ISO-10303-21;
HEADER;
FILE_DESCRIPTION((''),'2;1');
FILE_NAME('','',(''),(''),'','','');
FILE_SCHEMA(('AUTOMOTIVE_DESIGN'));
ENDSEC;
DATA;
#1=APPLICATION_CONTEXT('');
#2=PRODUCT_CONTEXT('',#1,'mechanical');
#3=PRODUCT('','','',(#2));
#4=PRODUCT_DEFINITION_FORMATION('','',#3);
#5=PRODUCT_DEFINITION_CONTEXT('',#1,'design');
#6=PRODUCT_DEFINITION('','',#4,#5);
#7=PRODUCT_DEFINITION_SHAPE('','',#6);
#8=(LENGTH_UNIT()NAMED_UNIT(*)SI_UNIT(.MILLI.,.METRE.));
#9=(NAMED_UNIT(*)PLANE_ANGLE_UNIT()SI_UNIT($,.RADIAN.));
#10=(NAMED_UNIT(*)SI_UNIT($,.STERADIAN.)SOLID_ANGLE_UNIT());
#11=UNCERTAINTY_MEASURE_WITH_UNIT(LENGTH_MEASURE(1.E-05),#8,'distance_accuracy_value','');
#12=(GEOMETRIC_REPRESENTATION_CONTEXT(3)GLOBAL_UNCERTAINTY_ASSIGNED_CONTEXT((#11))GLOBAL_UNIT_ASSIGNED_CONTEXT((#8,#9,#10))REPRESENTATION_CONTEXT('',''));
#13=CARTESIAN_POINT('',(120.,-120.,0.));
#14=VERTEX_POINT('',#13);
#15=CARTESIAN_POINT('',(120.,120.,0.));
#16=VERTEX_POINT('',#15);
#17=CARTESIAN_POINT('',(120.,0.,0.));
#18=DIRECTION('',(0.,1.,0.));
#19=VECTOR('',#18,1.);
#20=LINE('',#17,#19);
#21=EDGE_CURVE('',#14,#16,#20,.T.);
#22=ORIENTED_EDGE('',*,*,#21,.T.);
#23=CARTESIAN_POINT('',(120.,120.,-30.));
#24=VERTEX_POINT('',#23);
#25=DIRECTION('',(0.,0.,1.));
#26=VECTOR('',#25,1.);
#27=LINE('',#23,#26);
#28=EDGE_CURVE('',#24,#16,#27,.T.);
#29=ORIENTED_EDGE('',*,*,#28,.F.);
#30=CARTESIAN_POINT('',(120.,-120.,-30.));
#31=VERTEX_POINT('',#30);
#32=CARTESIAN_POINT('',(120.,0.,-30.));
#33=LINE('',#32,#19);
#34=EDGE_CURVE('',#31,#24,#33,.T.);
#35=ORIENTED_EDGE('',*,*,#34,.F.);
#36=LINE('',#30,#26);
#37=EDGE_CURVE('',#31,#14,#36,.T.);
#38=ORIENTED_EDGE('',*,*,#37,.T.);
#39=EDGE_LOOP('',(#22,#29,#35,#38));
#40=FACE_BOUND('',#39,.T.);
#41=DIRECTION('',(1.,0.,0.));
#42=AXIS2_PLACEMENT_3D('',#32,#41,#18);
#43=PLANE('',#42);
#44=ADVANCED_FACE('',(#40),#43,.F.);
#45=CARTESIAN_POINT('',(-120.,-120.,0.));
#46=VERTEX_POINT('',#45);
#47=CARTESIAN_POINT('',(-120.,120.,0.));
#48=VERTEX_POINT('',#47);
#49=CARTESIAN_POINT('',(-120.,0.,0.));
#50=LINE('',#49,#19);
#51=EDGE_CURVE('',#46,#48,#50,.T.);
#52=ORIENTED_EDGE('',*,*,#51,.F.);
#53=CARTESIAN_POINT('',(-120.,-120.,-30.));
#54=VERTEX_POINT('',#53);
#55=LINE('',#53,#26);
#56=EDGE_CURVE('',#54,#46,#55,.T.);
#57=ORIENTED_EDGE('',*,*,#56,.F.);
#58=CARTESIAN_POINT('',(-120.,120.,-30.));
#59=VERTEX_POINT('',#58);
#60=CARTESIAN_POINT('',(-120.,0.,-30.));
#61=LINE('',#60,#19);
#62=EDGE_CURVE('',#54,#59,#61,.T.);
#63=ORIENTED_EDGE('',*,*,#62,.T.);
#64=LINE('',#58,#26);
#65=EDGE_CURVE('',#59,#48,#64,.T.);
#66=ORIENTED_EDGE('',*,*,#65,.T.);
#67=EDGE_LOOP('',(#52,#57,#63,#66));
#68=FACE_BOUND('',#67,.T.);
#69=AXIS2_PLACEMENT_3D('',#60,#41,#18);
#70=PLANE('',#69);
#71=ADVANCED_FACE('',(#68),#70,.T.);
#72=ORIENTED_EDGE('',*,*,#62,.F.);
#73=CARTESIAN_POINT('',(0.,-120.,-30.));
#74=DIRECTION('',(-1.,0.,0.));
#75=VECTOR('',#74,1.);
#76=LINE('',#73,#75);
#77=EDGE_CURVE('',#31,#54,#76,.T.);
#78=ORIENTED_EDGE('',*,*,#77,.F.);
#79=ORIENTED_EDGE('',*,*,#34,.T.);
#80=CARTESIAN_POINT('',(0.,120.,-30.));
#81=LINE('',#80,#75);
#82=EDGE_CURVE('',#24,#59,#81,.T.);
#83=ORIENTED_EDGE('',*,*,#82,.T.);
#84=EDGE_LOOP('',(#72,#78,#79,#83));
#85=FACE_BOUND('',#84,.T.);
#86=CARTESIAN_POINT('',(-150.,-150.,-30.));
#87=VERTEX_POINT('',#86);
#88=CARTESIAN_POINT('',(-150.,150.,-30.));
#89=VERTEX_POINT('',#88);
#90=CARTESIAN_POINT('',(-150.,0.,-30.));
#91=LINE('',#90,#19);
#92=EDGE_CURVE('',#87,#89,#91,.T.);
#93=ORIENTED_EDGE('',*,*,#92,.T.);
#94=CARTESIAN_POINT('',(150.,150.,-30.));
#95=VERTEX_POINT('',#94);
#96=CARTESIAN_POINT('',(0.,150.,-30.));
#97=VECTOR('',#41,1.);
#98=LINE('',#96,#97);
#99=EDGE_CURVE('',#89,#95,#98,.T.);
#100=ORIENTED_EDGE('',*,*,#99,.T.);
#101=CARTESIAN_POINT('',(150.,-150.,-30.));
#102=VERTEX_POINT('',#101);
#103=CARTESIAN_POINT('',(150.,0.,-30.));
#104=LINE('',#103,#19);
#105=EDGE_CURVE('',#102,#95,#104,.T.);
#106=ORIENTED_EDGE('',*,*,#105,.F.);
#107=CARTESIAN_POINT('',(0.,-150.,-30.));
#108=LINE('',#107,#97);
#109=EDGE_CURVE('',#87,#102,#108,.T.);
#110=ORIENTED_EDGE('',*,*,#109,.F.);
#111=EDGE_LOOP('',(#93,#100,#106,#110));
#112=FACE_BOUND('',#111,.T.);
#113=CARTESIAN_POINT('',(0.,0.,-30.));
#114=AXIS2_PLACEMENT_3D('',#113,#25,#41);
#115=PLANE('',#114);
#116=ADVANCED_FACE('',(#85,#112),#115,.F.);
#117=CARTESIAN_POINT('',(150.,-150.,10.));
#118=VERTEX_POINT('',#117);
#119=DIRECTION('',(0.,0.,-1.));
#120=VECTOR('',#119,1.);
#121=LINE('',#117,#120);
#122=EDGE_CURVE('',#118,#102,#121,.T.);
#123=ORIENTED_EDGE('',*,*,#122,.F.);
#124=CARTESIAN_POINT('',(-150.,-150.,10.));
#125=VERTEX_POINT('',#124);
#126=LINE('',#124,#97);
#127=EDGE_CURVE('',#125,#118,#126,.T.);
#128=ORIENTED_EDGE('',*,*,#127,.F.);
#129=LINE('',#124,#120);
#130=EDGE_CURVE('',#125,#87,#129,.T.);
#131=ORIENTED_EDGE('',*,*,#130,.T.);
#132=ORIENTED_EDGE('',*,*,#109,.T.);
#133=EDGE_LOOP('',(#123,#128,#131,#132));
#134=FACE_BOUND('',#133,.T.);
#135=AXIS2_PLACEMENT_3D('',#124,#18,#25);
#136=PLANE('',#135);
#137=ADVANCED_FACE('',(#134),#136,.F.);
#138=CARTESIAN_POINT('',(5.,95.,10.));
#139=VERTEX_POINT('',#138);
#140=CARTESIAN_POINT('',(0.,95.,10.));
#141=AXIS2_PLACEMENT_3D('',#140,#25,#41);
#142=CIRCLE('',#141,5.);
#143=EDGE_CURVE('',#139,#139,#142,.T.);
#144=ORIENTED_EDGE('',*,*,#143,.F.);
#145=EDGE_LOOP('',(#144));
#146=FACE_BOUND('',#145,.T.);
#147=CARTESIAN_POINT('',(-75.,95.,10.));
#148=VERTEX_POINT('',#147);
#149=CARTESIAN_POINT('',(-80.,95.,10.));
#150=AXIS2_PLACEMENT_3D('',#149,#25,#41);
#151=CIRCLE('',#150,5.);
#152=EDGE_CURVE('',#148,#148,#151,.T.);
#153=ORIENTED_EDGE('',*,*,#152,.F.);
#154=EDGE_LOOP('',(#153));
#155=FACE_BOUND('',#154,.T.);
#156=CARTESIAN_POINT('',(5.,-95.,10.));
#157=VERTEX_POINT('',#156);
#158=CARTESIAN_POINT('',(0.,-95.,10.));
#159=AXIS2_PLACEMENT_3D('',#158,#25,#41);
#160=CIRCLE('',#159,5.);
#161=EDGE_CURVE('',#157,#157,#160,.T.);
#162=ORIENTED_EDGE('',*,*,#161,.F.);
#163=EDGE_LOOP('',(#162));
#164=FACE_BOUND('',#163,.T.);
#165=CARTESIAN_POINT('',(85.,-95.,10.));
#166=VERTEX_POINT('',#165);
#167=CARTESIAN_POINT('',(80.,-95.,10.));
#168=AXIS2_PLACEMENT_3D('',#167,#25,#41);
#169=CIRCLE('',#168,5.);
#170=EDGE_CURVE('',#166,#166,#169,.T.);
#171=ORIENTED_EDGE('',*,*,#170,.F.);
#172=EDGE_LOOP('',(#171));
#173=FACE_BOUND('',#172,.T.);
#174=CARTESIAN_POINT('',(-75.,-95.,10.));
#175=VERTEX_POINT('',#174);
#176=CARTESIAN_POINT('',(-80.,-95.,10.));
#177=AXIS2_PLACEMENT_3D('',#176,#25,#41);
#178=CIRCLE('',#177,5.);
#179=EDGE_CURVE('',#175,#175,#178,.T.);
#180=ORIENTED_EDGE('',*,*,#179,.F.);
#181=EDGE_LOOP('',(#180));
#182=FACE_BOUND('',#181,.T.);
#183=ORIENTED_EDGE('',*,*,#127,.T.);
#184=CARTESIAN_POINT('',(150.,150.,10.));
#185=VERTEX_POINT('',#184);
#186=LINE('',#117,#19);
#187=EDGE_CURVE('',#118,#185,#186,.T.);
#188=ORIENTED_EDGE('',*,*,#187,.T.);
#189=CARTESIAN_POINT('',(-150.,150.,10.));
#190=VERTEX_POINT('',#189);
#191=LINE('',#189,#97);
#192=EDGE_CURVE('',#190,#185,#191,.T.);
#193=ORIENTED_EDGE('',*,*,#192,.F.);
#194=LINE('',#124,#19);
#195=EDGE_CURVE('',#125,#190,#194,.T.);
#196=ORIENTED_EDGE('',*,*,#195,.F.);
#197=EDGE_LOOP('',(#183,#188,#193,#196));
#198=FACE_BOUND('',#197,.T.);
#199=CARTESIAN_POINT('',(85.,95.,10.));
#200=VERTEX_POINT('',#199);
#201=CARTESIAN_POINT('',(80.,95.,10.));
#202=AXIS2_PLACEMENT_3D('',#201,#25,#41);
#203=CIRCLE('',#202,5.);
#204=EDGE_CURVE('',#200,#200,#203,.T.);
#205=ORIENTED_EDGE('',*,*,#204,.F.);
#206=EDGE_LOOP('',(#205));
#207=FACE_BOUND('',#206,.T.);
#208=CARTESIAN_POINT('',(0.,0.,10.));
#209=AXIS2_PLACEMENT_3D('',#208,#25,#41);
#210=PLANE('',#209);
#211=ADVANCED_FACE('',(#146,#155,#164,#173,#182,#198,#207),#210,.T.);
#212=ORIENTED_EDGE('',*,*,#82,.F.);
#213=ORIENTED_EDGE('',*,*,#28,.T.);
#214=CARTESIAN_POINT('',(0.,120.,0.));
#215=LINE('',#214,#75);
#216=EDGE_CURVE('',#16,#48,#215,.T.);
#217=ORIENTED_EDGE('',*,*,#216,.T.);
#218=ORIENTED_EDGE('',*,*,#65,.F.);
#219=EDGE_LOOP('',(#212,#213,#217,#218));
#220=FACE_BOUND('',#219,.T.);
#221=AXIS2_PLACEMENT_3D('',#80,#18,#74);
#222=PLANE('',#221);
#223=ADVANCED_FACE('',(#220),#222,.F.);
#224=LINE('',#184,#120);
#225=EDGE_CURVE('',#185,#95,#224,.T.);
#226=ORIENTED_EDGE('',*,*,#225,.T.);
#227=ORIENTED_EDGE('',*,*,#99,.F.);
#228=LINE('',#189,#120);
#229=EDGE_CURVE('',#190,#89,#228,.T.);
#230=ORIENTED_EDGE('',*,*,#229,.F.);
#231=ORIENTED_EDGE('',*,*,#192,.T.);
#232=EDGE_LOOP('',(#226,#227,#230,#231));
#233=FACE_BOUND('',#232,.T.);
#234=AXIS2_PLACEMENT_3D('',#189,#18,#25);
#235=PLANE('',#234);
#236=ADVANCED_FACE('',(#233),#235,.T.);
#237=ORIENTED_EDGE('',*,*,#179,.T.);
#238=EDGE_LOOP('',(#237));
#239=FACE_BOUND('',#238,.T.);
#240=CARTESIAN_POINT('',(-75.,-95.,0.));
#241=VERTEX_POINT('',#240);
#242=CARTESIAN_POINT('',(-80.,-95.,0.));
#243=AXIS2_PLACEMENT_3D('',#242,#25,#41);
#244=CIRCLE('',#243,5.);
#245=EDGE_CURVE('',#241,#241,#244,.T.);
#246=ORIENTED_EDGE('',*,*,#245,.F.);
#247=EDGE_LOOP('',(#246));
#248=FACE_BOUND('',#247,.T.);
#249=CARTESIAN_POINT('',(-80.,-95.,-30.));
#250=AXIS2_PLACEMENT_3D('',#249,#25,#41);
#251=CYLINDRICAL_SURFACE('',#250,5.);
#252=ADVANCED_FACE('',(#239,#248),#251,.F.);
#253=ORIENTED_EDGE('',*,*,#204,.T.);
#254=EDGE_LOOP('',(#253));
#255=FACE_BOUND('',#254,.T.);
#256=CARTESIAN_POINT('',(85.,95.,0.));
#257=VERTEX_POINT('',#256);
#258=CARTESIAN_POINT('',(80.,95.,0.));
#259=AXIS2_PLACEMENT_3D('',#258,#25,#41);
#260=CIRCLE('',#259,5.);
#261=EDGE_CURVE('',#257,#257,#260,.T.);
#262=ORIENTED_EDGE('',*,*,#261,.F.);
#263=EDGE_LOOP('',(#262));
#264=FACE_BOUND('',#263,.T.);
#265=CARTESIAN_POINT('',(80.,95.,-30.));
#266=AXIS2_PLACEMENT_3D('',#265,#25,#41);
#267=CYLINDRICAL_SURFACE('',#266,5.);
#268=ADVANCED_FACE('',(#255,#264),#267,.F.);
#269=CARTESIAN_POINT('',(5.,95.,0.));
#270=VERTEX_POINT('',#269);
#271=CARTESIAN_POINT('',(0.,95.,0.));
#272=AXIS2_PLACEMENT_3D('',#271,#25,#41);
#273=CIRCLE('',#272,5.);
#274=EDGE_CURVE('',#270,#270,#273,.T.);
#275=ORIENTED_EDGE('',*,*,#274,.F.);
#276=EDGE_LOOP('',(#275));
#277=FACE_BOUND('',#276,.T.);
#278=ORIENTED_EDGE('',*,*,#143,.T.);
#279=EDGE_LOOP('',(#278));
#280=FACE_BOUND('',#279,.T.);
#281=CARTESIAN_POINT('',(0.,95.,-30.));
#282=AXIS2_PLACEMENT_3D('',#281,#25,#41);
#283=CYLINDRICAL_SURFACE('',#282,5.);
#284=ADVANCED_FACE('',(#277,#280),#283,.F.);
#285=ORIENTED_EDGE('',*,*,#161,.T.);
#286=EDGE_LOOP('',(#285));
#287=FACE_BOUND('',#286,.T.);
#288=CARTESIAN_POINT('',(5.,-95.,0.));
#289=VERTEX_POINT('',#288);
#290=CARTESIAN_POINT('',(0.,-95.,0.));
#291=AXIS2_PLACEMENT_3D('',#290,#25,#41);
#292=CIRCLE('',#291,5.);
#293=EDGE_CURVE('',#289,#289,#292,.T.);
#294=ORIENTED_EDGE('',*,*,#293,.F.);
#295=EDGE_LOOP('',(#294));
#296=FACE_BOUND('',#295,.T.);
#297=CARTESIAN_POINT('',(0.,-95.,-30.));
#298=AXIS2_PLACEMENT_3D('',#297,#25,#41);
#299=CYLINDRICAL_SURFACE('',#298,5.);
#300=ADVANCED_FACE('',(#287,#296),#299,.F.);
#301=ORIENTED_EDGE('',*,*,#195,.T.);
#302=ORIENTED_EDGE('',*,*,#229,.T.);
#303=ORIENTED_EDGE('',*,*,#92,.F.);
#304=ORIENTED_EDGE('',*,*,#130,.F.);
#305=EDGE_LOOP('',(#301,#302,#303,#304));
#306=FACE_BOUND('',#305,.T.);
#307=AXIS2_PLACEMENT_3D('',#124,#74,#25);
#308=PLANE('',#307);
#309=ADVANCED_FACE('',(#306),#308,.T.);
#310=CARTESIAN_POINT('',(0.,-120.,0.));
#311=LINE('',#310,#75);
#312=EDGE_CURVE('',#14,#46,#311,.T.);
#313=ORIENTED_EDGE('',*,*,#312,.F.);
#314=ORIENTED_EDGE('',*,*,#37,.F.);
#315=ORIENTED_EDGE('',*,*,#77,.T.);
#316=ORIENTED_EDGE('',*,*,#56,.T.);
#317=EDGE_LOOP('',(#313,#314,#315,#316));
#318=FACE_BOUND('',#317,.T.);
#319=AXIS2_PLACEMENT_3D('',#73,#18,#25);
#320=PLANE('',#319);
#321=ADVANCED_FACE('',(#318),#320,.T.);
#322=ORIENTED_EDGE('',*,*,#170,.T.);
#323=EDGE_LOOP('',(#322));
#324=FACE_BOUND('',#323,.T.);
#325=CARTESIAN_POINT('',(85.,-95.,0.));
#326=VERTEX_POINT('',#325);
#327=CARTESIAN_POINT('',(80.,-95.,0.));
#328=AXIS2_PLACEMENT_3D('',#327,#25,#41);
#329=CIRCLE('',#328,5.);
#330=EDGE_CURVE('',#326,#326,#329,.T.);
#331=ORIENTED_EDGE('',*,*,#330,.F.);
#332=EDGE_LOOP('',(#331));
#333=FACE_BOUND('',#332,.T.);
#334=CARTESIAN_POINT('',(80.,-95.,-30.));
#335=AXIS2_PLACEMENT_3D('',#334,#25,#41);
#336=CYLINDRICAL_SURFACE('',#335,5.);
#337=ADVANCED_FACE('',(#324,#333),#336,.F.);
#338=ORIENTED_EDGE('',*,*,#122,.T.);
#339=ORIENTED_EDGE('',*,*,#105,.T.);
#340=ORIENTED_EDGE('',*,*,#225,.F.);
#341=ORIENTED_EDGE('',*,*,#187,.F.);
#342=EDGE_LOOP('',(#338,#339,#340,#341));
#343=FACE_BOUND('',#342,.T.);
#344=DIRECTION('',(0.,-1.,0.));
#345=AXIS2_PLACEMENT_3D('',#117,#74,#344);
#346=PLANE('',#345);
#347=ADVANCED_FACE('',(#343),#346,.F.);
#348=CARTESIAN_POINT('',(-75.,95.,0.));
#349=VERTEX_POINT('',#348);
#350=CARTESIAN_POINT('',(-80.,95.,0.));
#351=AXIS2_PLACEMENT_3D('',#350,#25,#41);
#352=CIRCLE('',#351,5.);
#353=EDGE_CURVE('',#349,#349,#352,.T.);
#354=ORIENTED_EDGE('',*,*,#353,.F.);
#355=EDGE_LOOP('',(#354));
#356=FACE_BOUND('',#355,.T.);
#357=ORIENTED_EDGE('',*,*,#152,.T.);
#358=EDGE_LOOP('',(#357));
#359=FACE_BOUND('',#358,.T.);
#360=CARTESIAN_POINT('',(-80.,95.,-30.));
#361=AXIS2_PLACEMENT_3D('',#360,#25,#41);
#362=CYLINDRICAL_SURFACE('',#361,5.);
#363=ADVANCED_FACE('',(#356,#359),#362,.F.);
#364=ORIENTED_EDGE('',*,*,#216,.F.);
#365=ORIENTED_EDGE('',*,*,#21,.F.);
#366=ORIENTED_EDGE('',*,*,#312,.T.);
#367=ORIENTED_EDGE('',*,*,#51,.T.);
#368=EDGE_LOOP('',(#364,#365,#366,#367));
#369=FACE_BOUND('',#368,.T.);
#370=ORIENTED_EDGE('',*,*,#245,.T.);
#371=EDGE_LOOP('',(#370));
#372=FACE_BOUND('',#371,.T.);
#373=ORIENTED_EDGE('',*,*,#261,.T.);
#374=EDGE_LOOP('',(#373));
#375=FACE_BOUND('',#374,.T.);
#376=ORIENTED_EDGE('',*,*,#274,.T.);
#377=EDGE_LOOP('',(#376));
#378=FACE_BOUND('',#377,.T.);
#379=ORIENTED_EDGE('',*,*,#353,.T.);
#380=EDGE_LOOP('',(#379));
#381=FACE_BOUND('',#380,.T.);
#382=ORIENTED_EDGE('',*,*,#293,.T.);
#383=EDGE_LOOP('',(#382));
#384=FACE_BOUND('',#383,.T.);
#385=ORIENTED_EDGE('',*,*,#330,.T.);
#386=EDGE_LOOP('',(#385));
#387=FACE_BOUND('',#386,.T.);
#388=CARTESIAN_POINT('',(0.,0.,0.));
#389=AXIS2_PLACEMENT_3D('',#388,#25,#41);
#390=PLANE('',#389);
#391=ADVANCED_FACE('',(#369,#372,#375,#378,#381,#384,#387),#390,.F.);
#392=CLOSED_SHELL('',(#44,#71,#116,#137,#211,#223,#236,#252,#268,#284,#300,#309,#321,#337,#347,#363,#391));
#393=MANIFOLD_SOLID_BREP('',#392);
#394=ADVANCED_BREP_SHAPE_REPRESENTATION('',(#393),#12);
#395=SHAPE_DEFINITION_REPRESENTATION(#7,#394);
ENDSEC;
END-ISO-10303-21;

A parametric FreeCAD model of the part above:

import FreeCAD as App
import Part
import Sketcher

V = App.Vector


def add_polygon(sketch, points):
    """Adds a closed chain of lines whose ends are joined by coincident constraints."""
    first, n = sketch.GeometryCount, len(points)
    for a, b in zip(points, points[1:] + points[:1]):
        sketch.addGeometry(Part.LineSegment(App.Vector(*a, 0), App.Vector(*b, 0)), False)
    for i in range(n):
        sketch.addConstraint(Sketcher.Constraint("Coincident", first + i, 2, first + (i + 1) % n, 1))

doc = App.newDocument("Part")
body = doc.addObject("PartDesign::Body", "Body")

sketch1 = doc.addObject("Sketcher::SketchObject", "Sketch")
body.addObject(sketch1)
sketch1.AttachmentSupport = (doc.XY_Plane, [""])
sketch1.MapMode = "FlatFace"
add_polygon(sketch1, [(-150, 150), (-150, -150), (150, -150), (150, 150)])
sketch1.addConstraint(Sketcher.Constraint("Vertical", 0))
sketch1.addConstraint(Sketcher.Constraint("Horizontal", 1))
sketch1.addConstraint(Sketcher.Constraint("Vertical", 2))
sketch1.addConstraint(Sketcher.Constraint("Horizontal", 3))
sketch1.addConstraint(Sketcher.Constraint("Symmetric", 0, 2, 2, 2, -1, 1))
sketch1.addConstraint(Sketcher.Constraint("Equal", 3, 0))
sketch1.addConstraint(Sketcher.Constraint("DistanceX", 1, 1, 1, 2, 300.0))
pad1 = doc.addObject("PartDesign::Pad", "Pad")
body.addObject(pad1)
pad1.Profile = sketch1
pad1.Length = 10

sketch2 = doc.addObject("Sketcher::SketchObject", "Sketch001")
body.addObject(sketch2)
sketch2.AttachmentSupport = (doc.XY_Plane, [""])
sketch2.MapMode = "FlatFace"
add_polygon(sketch2, [(-150, 150), (-150, -150), (150, -150), (150, 150)])
add_polygon(sketch2, [(120, 120), (120, -120), (-120, -120), (-120, 120)])
sketch2.addConstraint(Sketcher.Constraint("Vertical", 0))
sketch2.addConstraint(Sketcher.Constraint("Horizontal", 1))
sketch2.addConstraint(Sketcher.Constraint("Vertical", 2))
sketch2.addConstraint(Sketcher.Constraint("Horizontal", 3))
sketch2.addConstraint(Sketcher.Constraint("Vertical", 4))
sketch2.addConstraint(Sketcher.Constraint("Horizontal", 5))
sketch2.addConstraint(Sketcher.Constraint("Vertical", 6))
sketch2.addConstraint(Sketcher.Constraint("Horizontal", 7))
sketch2.addConstraint(Sketcher.Constraint("Symmetric", 0, 2, 2, 2, -1, 1))
sketch2.addConstraint(Sketcher.Constraint("Symmetric", 4, 2, 6, 2, -1, 1))
sketch2.addConstraint(Sketcher.Constraint("Equal", 3, 0))
sketch2.addConstraint(Sketcher.Constraint("Equal", 7, 4))
sketch2.addConstraint(Sketcher.Constraint("DistanceX", 1, 1, 1, 2, 300.0))
sketch2.addConstraint(Sketcher.Constraint("DistanceX", 5, 2, 5, 1, 240.0))
pad2 = doc.addObject("PartDesign::Pad", "Pad001")
body.addObject(pad2)
pad2.Profile = sketch2
pad2.Length = 30
pad2.Reversed = True

sketch3 = doc.addObject("Sketcher::SketchObject", "Sketch002")
body.addObject(sketch3)
sketch3.AttachmentSupport = (doc.XY_Plane, [""])
sketch3.MapMode = "FlatFace"
sketch3.addGeometry(Part.Circle(V(80, 95, 0), V(0, 0, 1), 5), False)
sketch3.addGeometry(Part.Circle(V(-80, 95, 0), V(0, 0, 1), 5), False)
sketch3.addGeometry(Part.Circle(V(0, 95, 0), V(0, 0, 1), 5), False)
sketch3.addGeometry(Part.Circle(V(-80, -95, 0), V(0, 0, 1), 5), False)
sketch3.addGeometry(Part.Circle(V(80, -95, 0), V(0, 0, 1), 5), False)
sketch3.addGeometry(Part.Circle(V(0, -95, 0), V(0, 0, 1), 5), False)
sketch3.addConstraint(Sketcher.Constraint("Equal", 0, 1))
sketch3.addConstraint(Sketcher.Constraint("Equal", 1, 2))
sketch3.addConstraint(Sketcher.Constraint("Equal", 2, 3))
sketch3.addConstraint(Sketcher.Constraint("Equal", 3, 4))
sketch3.addConstraint(Sketcher.Constraint("Equal", 4, 5))
sketch3.addConstraint(Sketcher.Constraint("Symmetric", 0, 3, 3, 3, -1, 1))
sketch3.addConstraint(Sketcher.Constraint("Symmetric", 1, 3, 4, 3, -1, 1))
sketch3.addConstraint(Sketcher.Constraint("Symmetric", 2, 3, 5, 3, -1, 1))
sketch3.addConstraint(Sketcher.Constraint("Symmetric", 0, 3, 1, 3, -2))
sketch3.addConstraint(Sketcher.Constraint("PointOnObject", 2, 3, -2))
sketch3.addConstraint(Sketcher.Constraint("Horizontal", 1, 3, 2, 3))
sketch3.addConstraint(Sketcher.Constraint("Diameter", 0, 10.0))
sketch3.addConstraint(Sketcher.Constraint("DistanceX", -1, 1, 0, 3, 80.0))
sketch3.addConstraint(Sketcher.Constraint("DistanceY", -1, 1, 0, 3, 95.0))
pocket1 = doc.addObject("PartDesign::Pocket", "Pocket")
body.addObject(pocket1)
pocket1.Profile = sketch3
pocket1.Type = "ThroughAll"
pocket1.Midplane = True

doc.recompute()
